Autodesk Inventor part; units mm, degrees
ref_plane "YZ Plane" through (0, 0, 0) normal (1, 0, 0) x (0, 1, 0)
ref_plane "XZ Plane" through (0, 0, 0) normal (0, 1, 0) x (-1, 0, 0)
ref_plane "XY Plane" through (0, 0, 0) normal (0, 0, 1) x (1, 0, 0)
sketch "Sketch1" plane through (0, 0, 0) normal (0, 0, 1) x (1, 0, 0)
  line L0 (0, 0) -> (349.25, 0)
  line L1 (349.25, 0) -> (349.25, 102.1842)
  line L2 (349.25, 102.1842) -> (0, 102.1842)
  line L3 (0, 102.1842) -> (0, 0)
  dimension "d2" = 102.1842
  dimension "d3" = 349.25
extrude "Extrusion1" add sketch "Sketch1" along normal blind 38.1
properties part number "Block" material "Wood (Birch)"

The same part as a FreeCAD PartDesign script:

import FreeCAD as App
import Part
import Sketcher

V = App.Vector
Q = App.Units.Quantity


def add_polygon(sketch, points):
    """Adds a closed chain of lines whose ends are joined by coincident constraints."""
    first, n = sketch.GeometryCount, len(points)
    for a, b in zip(points, points[1:] + points[:1]):
        sketch.addGeometry(Part.LineSegment(App.Vector(*a, 0), App.Vector(*b, 0)), False)
    for i in range(n):
        sketch.addConstraint(Sketcher.Constraint("Coincident", first + i, 2, first + (i + 1) % n, 1))

doc = App.newDocument("Part")
body = doc.addObject("PartDesign::Body", "Body")

# Sketch on XY plane
sketch1 = body.newObject("Sketcher::SketchObject", "Sketch")
sketch1.AttachmentSupport = (doc.getObject("XY_Plane"), [""])
sketch1.MapMode = "FlatFace"
add_polygon(sketch1, [(0, 102.1842), (0, 0), (349.25, 0), (349.25, 102.1842)])  # lines 0-3
sketch1.addConstraint([
    Sketcher.Constraint("Vertical", 0),
    Sketcher.Constraint("Horizontal", 1),
    Sketcher.Constraint("Vertical", 2),
    Sketcher.Constraint("Horizontal", 3),
    Sketcher.Constraint("Coincident", 0, 2, -1, 1),
    Sketcher.Constraint("DistanceX", 1, 1, 1, 2, Q("13.75 in")),
    Sketcher.Constraint("DistanceY", 0, 2, 0, 1, Q("4.023 in")),
])
pad1 = body.newObject("PartDesign::Pad", "Pad")
pad1.Profile = sketch1
pad1.Length = Q("1.5 in")

doc.recompute()
